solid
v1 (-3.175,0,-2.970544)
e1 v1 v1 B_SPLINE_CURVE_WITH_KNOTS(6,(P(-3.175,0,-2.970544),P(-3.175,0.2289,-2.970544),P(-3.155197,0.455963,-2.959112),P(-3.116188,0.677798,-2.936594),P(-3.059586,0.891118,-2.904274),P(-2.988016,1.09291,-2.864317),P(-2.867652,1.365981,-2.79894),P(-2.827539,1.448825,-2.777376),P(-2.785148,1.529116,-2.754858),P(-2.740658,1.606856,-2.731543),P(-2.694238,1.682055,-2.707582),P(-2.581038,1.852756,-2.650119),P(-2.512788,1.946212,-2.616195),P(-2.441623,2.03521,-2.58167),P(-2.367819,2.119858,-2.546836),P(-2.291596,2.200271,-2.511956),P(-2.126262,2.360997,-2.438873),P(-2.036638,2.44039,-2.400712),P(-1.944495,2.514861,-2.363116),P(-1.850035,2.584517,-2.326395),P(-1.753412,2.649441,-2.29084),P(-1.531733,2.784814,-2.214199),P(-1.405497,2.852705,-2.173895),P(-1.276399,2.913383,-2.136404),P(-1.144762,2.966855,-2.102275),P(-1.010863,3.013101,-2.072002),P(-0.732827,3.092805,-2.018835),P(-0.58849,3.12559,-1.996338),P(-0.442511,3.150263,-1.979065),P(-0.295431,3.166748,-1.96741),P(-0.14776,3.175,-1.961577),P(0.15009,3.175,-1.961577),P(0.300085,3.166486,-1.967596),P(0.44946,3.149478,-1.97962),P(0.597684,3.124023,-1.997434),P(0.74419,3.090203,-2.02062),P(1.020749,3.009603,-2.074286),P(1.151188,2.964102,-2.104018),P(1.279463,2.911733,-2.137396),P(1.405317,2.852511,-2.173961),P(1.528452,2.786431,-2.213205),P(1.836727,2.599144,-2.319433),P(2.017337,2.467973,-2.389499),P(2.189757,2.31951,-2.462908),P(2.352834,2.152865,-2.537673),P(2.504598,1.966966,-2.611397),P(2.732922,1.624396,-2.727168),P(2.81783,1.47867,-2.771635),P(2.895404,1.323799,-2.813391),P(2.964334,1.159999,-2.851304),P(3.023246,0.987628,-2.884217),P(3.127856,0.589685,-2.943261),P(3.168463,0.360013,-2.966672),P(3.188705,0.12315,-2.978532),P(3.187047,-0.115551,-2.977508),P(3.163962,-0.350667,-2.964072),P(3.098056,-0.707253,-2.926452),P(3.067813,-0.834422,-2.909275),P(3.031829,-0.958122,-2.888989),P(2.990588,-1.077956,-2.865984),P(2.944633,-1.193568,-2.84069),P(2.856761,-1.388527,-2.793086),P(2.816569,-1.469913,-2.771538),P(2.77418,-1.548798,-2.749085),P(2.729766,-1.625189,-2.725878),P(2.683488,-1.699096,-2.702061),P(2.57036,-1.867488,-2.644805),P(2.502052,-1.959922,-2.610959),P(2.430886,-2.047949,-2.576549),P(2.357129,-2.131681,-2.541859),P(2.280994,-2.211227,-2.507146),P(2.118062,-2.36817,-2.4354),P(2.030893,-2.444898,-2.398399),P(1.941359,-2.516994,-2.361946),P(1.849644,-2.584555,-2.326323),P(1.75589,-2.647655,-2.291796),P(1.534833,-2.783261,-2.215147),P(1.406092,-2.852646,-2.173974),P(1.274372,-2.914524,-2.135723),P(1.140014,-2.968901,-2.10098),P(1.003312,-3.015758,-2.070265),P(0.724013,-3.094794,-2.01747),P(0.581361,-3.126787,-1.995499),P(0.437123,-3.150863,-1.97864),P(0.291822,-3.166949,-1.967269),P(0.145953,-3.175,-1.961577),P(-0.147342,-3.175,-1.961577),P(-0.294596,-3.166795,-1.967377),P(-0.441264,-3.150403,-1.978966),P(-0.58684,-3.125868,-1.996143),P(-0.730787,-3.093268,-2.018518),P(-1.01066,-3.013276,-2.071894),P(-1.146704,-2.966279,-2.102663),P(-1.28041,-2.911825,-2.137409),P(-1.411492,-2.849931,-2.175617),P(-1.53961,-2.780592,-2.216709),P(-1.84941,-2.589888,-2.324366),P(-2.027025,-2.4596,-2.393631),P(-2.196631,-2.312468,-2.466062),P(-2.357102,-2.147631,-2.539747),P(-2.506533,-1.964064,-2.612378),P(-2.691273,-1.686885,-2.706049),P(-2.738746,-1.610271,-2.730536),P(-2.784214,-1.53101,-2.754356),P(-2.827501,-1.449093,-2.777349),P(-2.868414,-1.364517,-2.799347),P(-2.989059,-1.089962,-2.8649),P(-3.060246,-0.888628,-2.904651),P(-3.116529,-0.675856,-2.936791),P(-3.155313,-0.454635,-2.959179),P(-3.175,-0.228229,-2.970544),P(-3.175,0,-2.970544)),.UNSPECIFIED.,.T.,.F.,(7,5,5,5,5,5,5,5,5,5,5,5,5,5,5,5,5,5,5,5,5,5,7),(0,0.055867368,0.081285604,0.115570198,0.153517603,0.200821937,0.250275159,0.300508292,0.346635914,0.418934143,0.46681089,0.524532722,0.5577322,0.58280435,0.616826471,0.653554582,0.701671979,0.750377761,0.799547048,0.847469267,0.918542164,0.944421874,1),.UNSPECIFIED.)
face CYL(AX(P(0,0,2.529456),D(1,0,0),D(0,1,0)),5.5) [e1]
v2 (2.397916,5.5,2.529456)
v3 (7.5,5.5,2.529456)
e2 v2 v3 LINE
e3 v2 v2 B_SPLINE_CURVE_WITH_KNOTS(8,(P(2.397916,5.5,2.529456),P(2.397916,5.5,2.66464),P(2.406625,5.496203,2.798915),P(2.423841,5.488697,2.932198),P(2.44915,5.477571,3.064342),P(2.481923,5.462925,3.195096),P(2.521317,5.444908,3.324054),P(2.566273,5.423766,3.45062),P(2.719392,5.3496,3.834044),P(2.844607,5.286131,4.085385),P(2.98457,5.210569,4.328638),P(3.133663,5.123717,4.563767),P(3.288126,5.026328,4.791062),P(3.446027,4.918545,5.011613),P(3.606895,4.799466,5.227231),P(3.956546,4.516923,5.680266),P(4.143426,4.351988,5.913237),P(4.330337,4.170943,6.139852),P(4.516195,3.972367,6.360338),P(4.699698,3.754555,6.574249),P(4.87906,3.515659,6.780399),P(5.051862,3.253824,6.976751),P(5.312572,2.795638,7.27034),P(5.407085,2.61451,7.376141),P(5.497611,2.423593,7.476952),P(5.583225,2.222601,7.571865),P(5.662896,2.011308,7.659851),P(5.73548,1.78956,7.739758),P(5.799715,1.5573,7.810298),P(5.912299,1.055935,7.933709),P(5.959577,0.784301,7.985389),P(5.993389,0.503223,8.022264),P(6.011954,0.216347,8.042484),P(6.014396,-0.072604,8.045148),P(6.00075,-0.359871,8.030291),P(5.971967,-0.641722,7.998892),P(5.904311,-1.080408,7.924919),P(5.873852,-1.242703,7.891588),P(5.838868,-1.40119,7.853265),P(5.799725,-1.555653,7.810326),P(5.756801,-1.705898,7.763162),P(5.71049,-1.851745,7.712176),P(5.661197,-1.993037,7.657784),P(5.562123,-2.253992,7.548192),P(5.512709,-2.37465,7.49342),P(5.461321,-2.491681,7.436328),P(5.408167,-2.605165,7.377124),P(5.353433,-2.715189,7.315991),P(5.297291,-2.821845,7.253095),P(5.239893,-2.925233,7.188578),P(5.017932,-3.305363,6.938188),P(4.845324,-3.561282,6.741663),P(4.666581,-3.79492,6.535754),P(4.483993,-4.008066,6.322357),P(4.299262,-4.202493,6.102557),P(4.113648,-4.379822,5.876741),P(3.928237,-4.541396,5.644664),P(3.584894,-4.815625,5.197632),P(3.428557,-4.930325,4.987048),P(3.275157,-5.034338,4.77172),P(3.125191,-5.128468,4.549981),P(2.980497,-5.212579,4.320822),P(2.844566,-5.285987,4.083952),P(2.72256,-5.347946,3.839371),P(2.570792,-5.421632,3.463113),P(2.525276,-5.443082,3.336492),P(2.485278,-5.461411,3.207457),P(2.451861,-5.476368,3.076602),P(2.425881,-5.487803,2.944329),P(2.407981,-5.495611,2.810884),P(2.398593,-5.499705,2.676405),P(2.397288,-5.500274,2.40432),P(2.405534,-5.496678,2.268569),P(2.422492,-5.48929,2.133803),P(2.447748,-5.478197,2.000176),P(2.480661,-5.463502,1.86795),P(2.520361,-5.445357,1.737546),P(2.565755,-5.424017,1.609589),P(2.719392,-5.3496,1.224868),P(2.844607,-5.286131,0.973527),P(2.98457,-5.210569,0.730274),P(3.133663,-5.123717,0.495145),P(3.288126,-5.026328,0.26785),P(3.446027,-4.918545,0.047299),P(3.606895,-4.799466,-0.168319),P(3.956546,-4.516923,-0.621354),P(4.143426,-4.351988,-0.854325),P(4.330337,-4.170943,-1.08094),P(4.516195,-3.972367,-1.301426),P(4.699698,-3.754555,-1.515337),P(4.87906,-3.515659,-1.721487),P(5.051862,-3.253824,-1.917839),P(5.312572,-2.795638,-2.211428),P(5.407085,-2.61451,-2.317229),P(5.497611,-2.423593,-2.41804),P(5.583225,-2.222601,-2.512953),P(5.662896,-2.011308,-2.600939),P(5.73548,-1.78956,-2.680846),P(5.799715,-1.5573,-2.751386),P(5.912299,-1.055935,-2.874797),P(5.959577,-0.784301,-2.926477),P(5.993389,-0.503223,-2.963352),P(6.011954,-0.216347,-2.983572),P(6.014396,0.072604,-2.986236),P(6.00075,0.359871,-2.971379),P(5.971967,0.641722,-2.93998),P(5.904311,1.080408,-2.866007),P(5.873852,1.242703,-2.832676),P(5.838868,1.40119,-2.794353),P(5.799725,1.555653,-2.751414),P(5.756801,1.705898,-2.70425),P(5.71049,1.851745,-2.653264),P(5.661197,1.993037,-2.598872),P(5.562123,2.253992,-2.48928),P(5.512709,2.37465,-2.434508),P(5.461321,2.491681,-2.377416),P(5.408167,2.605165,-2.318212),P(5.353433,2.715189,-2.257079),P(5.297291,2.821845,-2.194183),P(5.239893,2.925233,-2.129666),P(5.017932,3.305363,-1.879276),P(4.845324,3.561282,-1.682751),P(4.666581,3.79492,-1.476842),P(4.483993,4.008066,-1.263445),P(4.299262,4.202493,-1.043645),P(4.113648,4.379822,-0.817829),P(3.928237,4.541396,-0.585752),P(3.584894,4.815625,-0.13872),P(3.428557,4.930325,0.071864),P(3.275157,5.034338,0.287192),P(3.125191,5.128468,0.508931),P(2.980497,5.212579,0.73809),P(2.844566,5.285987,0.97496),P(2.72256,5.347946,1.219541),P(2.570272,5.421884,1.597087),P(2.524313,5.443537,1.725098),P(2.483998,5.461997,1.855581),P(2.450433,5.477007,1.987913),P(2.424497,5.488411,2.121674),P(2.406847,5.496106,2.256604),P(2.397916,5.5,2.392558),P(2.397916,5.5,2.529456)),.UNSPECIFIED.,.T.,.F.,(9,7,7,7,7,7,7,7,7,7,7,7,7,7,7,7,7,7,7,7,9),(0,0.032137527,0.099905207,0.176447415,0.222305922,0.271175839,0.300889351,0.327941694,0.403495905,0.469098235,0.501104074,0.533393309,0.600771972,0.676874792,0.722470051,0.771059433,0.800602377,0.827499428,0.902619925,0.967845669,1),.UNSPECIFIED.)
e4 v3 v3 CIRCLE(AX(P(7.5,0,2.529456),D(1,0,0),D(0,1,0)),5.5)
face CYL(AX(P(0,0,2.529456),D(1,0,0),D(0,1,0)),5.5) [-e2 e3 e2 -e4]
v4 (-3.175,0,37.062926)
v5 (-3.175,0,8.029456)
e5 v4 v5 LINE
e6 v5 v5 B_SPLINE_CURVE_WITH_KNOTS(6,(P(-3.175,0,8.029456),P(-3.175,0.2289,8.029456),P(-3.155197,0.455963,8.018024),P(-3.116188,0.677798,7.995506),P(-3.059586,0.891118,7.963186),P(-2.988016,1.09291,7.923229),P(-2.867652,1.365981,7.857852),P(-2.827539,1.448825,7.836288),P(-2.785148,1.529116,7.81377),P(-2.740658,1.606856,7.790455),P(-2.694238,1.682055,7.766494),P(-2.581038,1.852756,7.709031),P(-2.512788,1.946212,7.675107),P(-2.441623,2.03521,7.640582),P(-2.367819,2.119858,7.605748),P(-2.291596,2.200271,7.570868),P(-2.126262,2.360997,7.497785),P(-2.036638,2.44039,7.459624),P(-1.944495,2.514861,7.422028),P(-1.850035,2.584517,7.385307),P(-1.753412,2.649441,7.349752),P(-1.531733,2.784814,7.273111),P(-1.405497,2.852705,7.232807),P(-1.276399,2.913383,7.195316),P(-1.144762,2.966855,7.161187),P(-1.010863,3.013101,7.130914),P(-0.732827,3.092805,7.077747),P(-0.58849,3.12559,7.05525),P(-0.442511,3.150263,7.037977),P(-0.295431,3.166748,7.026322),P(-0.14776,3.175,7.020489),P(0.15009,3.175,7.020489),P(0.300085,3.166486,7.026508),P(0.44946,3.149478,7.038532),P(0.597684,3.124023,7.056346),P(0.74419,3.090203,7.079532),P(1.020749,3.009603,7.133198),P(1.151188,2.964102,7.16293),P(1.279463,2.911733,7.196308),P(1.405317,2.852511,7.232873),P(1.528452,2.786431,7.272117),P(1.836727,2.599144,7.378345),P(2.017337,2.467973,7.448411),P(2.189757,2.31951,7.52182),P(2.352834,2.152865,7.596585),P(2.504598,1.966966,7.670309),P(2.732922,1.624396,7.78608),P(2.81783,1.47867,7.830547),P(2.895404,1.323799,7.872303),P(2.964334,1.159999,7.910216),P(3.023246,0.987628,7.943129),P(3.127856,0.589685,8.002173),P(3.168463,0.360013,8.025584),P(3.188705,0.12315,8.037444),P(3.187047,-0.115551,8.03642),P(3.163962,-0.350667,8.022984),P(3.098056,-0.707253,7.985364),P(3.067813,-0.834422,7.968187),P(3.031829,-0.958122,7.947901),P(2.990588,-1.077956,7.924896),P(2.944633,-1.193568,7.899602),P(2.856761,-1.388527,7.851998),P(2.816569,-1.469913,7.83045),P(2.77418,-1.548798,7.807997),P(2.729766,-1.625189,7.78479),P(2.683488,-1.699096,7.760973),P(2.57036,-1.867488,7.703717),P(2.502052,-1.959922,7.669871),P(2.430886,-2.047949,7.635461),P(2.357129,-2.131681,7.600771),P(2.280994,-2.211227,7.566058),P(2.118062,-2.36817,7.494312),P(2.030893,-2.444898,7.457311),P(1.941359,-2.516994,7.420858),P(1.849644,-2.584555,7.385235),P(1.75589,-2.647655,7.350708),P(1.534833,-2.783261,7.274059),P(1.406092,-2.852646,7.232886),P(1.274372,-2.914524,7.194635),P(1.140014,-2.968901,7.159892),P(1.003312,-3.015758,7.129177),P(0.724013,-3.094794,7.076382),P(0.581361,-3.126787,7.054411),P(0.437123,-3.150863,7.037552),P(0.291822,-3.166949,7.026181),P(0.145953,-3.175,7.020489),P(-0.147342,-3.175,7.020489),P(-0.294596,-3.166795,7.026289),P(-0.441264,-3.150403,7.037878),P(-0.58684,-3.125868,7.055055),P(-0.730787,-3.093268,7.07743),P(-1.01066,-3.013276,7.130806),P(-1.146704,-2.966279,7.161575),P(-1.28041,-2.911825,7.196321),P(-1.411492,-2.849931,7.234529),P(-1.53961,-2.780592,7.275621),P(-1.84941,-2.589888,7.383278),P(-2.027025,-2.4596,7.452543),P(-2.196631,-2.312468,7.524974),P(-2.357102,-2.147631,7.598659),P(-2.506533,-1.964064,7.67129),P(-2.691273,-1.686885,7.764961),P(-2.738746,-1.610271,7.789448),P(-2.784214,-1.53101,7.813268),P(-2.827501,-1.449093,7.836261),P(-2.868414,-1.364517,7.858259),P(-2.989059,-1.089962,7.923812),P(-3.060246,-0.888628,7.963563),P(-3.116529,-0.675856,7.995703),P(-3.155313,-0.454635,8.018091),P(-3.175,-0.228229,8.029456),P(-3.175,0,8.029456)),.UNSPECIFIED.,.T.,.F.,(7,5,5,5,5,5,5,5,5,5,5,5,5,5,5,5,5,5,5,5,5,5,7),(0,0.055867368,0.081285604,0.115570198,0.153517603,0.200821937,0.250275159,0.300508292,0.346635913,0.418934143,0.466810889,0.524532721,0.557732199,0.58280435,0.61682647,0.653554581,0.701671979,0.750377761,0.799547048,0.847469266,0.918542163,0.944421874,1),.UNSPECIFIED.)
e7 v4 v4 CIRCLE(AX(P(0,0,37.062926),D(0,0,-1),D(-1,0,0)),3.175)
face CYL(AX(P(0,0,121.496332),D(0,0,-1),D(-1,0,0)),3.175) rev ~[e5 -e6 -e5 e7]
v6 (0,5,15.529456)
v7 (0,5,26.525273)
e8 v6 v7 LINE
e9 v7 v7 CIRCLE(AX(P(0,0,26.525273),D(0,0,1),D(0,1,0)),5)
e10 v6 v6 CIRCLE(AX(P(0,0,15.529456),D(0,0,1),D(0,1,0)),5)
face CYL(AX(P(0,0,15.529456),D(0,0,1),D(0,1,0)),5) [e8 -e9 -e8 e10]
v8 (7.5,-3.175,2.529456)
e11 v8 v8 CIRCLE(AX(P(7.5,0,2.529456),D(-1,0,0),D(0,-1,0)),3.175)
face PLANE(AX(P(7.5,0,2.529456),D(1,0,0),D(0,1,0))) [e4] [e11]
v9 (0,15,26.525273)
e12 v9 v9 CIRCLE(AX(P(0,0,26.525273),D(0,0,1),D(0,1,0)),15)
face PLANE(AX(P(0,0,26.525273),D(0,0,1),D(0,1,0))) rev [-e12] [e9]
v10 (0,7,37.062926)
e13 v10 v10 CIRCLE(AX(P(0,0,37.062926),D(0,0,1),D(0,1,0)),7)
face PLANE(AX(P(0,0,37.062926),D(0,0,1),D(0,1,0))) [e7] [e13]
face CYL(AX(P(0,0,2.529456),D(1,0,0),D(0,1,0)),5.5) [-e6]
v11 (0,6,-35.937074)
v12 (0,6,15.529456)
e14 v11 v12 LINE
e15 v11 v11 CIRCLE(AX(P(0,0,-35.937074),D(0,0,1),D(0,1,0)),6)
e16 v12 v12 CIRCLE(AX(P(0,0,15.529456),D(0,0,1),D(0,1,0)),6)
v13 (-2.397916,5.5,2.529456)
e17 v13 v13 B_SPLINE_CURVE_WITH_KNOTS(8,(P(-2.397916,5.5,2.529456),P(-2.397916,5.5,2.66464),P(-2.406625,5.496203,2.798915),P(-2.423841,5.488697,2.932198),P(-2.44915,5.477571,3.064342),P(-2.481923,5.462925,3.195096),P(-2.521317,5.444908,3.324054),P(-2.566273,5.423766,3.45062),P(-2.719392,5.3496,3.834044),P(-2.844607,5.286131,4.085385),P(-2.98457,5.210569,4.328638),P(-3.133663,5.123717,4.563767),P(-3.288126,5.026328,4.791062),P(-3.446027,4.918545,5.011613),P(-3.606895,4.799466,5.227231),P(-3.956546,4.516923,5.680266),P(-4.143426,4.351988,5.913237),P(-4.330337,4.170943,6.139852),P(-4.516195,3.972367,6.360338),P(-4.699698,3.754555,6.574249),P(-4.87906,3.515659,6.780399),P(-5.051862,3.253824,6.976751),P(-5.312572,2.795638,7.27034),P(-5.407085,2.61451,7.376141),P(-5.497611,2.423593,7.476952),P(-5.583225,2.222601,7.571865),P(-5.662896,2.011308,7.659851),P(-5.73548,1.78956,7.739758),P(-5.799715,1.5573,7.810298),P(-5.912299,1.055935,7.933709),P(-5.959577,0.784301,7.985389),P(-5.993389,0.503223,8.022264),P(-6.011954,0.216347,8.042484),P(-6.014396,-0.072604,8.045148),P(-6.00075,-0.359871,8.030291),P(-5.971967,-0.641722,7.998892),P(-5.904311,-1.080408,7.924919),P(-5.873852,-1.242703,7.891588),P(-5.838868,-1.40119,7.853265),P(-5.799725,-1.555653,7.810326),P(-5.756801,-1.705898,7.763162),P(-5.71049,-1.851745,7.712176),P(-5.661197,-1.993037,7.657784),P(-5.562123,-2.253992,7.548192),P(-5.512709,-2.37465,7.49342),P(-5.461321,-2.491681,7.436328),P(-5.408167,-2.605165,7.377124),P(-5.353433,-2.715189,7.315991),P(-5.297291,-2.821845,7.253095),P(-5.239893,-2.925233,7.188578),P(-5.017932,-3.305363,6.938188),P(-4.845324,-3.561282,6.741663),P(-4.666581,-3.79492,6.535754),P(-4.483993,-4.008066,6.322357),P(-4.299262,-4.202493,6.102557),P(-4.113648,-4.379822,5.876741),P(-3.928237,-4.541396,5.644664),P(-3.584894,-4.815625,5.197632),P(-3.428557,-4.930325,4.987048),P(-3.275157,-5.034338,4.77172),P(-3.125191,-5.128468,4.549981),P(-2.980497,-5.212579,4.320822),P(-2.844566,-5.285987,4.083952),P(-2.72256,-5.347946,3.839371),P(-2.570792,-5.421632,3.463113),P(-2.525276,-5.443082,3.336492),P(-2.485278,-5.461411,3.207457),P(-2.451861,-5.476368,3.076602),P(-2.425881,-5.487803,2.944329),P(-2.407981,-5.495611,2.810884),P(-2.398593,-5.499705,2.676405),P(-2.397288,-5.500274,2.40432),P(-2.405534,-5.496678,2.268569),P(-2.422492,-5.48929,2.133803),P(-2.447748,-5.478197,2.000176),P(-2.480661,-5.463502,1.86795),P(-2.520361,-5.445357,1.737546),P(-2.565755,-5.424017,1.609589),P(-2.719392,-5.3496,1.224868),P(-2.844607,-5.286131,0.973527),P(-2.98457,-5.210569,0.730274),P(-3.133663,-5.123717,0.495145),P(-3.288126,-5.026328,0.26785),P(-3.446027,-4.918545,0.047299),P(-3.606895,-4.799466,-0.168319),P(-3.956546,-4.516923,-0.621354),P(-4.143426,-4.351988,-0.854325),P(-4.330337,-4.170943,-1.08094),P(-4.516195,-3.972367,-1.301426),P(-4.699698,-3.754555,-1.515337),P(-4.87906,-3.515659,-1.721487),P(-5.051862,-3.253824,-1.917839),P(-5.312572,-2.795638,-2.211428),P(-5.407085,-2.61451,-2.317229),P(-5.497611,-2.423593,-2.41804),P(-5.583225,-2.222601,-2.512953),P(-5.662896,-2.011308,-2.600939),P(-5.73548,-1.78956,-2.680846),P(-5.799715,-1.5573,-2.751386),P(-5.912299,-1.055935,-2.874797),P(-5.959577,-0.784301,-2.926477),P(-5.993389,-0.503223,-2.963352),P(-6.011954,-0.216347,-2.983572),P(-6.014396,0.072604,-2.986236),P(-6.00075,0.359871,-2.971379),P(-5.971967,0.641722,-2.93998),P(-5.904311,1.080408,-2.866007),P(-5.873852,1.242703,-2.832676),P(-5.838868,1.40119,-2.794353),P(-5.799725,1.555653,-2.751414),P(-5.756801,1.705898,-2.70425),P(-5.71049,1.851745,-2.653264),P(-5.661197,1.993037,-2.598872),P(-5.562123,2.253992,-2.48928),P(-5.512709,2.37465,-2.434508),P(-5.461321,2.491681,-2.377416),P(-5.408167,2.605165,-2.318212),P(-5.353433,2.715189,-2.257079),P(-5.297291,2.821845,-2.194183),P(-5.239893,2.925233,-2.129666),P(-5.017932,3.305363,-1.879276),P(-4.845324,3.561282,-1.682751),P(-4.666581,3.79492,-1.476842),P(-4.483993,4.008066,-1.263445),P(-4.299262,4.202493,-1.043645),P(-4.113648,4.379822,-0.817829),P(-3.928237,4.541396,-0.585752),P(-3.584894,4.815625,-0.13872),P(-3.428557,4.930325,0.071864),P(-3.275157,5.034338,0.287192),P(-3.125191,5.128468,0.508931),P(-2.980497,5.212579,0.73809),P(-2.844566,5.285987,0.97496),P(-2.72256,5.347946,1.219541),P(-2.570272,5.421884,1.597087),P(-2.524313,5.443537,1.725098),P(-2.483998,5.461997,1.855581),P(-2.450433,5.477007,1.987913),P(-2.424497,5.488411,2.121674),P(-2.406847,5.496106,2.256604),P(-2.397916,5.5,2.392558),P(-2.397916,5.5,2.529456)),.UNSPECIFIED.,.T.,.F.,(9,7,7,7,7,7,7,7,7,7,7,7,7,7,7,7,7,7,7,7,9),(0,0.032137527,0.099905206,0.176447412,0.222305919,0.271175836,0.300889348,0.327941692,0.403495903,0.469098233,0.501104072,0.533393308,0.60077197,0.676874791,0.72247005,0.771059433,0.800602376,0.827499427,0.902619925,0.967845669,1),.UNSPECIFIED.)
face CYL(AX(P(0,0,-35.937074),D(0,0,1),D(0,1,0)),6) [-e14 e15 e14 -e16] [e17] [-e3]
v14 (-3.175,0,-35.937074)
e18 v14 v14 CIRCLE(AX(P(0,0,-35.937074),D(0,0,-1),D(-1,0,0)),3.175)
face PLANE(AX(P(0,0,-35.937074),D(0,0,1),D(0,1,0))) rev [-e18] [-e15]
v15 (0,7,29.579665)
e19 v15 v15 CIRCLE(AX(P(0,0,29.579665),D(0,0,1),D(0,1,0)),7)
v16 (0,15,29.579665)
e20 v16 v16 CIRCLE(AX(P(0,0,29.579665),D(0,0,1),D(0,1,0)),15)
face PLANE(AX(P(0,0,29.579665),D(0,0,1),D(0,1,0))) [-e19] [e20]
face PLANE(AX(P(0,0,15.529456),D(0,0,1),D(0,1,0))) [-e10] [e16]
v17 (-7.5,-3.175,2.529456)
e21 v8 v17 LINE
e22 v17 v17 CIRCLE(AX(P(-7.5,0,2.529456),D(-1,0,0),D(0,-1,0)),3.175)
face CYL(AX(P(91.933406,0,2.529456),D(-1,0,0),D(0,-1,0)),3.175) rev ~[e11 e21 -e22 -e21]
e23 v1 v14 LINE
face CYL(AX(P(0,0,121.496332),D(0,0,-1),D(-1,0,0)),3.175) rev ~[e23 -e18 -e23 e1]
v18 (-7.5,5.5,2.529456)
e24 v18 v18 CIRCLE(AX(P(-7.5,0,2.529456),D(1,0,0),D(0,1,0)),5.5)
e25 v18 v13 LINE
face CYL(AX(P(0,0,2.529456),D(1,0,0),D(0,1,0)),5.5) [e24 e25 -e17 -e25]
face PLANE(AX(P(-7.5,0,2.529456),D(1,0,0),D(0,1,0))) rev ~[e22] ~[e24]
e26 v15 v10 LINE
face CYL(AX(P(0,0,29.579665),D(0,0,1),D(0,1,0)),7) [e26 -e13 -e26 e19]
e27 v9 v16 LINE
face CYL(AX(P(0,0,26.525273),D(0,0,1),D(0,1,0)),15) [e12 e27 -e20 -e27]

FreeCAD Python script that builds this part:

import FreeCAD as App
import Part
import Sketcher

V = App.Vector


def add_polygon(sketch, points):
    """Adds a closed chain of lines whose ends are joined by coincident constraints."""
    first, n = sketch.GeometryCount, len(points)
    for a, b in zip(points, points[1:] + points[:1]):
        sketch.addGeometry(Part.LineSegment(App.Vector(*a, 0), App.Vector(*b, 0)), False)
    for i in range(n):
        sketch.addConstraint(Sketcher.Constraint("Coincident", first + i, 2, first + (i + 1) % n, 1))

doc = App.newDocument("Part")
body = doc.addObject("PartDesign::Body", "Body")

sketch1 = doc.addObject("Sketcher::SketchObject", "Sketch")
body.addObject(sketch1)
sketch1.AttachmentSupport = (doc.YZ_Plane, [""])
sketch1.MapMode = "FlatFace"
add_polygon(sketch1, [(0, 37.1), (0, -35.9), (6, -35.9), (6, 15.5), (5, 15.5), (5, 26.5), (15, 26.5), (15, 29.6), (7, 29.6), (7, 37.1)])
sketch1.addConstraint([
    Sketcher.Constraint("Vertical", 0),
    Sketcher.Constraint("Horizontal", 1),
    Sketcher.Constraint("Vertical", 2),
    Sketcher.Constraint("Horizontal", 3),
    Sketcher.Constraint("Vertical", 4),
    Sketcher.Constraint("Horizontal", 5),
    Sketcher.Constraint("Vertical", 6),
    Sketcher.Constraint("Horizontal", 7),
    Sketcher.Constraint("Vertical", 8),
    Sketcher.Constraint("Horizontal", 9),
    Sketcher.Constraint("PointOnObject", 0, 2, -2),
    Sketcher.Constraint("DistanceX", 1, 1, 1, 2, 6.0),
    Sketcher.Constraint("DistanceX", 3, 2, 3, 1, 1.0),
    Sketcher.Constraint("DistanceX", 5, 1, 5, 2, 10.0),
    Sketcher.Constraint("DistanceX", 7, 2, 7, 1, 8.0),
    Sketcher.Constraint("DistanceY", 0, 2, 0, 1, 73.0),
    Sketcher.Constraint("DistanceY", 2, 1, 2, 2, 51.46653),
    Sketcher.Constraint("DistanceY", 6, 1, 6, 2, 3.054392),
    Sketcher.Constraint("DistanceY", 8, 1, 8, 2, 7.483261),
    Sketcher.Constraint("DistanceY", 0, 2, -1, 1, 35.937074),
])
revolution = doc.addObject("PartDesign::Revolution", "Revolution")
body.addObject(revolution)
revolution.Profile = sketch1
revolution.ReferenceAxis = (sketch1, ["V_Axis"])
revolution.Angle = 360

sketch2 = doc.addObject("Sketcher::SketchObject", "Sketch001")
body.addObject(sketch2)
sketch2.AttachmentSupport = (doc.XY_Plane, [""])
sketch2.MapMode = "FlatFace"
sketch2.AttachmentOffset = App.Placement(V(0, 0, 37.062926), App.Rotation())
sketch2.addGeometry(Part.Circle(V(0, 0, 0), V(0, 0, 1), 3.2), False)
sketch2.addConstraint([
    Sketcher.Constraint("Coincident", 0, 3, -1, 1),
    Sketcher.Constraint("Diameter", 0, 6.35),
])
doc.recompute()
hole = doc.addObject("PartDesign::Hole", "Hole")
body.addObject(hole)
hole.Profile = sketch2
hole.ThreadType = "None"
hole.Diameter = 6.35
hole.DepthType = "ThroughAll"

sketch3 = doc.addObject("Sketcher::SketchObject", "Sketch002")
body.addObject(sketch3)
sketch3.AttachmentSupport = (doc.YZ_Plane, [""])
sketch3.MapMode = "FlatFace"
sketch3.addGeometry(Part.Circle(V(0, 3, 0), V(0, 0, 1), 6), False)
sketch3.addConstraint([
    Sketcher.Constraint("PointOnObject", 0, 3, -2),
    Sketcher.Constraint("Diameter", 0, 11.0),
    Sketcher.Constraint("DistanceY", -1, 1, 0, 3, 2.529456),
])
pad1 = doc.addObject("PartDesign::Pad", "Pad")
body.addObject(pad1)
pad1.Profile = sketch3
pad1.Length = 15
pad1.Midplane = True

sketch4 = doc.addObject("Sketcher::SketchObject", "Sketch003")
body.addObject(sketch4)
sketch4.AttachmentSupport = (doc.YZ_Plane, [""])
sketch4.MapMode = "FlatFace"
sketch4.AttachmentOffset = App.Placement(V(0, 0, 7.5), App.Rotation())
sketch4.addGeometry(Part.Circle(V(0, 2.5, 0), V(0, 0, 1), 3.2), False)
sketch4.addConstraint([
    Sketcher.Constraint("PointOnObject", 0, 3, -2),
    Sketcher.Constraint("Diameter", 0, 6.35),
    Sketcher.Constraint("DistanceY", -1, 1, 0, 3, 2.529456),
])
doc.recompute()
hole2 = doc.addObject("PartDesign::Hole", "Hole001")
body.addObject(hole2)
hole2.Profile = sketch4
hole2.ThreadType = "None"
hole2.Diameter = 6.35
hole2.DepthType = "ThroughAll"

doc.recompute()
